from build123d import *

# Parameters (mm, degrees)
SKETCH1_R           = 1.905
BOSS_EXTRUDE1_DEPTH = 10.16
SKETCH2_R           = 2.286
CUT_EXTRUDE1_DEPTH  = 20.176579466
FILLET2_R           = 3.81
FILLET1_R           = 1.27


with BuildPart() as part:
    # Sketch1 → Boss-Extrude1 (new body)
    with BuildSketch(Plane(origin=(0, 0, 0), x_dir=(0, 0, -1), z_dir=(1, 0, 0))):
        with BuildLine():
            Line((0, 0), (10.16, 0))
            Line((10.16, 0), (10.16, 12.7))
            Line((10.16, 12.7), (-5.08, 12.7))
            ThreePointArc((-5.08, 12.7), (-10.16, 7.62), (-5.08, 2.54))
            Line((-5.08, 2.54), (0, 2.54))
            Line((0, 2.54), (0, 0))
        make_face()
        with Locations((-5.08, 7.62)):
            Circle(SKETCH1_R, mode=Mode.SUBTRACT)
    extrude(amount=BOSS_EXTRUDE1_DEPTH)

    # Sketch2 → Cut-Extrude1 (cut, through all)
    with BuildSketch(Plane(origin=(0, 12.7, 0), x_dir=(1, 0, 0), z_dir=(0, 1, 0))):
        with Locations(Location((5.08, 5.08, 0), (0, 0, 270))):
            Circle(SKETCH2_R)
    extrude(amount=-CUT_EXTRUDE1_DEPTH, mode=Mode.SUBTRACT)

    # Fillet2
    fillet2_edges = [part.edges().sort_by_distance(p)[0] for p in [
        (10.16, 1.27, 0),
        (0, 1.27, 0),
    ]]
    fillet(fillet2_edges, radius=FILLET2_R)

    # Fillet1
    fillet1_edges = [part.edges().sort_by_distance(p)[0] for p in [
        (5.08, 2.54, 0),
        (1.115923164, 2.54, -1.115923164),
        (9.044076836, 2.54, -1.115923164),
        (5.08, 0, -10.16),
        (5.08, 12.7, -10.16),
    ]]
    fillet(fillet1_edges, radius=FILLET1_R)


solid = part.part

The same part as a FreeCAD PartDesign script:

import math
import FreeCAD as App
import Part
import Sketcher
from FreeCAD import Vector
Q = App.Units.Quantity


def edges_at(feature, points):
    """Names of the edges that pass closest to the given points."""
    edges = feature.Shape.Edges
    near = lambda p: min(range(len(edges)), key=lambda i: edges[i].distToShape(Part.Vertex(*p))[0])
    return sorted({f"Edge{near(p) + 1}" for p in points})

doc = App.newDocument("Part")
params = doc.addObject("Spreadsheet::Sheet", "Params")
for row, (alias, value) in enumerate([
    ("sketch1_radius", "0.2 in"),
    ("sketch1_diameter", "0.15 in"),
    ("sketch1_width", "0.5 in"),
    ("sketch1_height", "0.4 in"),
    ("sketch1_height2", "0.6 in"),
    ("pad1_length", "0.4 in"),
    ("sketch2_diameter", "0.18 in"),
    ("fillet_radius", "0.15 in"),
    ("fillet2_radius", "0.05 in"),
], start=1):
    params.set(f"A{row}", alias)
    params.set(f"B{row}", "=" + value)
    params.setAlias(f"B{row}", alias)

body = doc.addObject("PartDesign::Body", "Body")

# Sketch on YZ plane
sketch1 = body.newObject("Sketcher::SketchObject", "Sketch")
sketch1.AttachmentSupport = (doc.getObject("YZ_Plane"), [""])
sketch1.MapMode = "FlatFace"
sketch1.addGeometry(Part.LineSegment(Vector(0, 0, 0), Vector(0, -10.2, 0)), False)
sketch1.addGeometry(Part.LineSegment(Vector(0, -10.2, 0), Vector(12.7, -10.2, 0)), False)
sketch1.addGeometry(Part.LineSegment(Vector(12.7, -10.2, 0), Vector(12.7, 5.1, 0)), False)
sketch1.addGeometry(Part.ArcOfCircle(Part.Circle(Vector(7.6, 5.1, 0), Vector(0, 0, 1), 5.1), math.radians(0), math.radians(180)), False)
sketch1.addGeometry(Part.LineSegment(Vector(2.5, 5.1, 0), Vector(2.5, 0, 0)), False)
sketch1.addGeometry(Part.LineSegment(Vector(2.5, 0, 0), Vector(0, 0, 0)), False)
sketch1.addGeometry(Part.Circle(Vector(7.6, 5.1, 0), Vector(0, 0, 1), 1.9), False)
sketch1.addConstraint(Sketcher.Constraint("Coincident", 0, 2, 1, 1))
sketch1.addConstraint(Sketcher.Constraint("Coincident", 1, 2, 2, 1))
sketch1.addConstraint(Sketcher.Constraint("Tangent", 2, 2, 3, 1))
sketch1.addConstraint(Sketcher.Constraint("Tangent", 3, 2, 4, 1))
sketch1.addConstraint(Sketcher.Constraint("Coincident", 4, 2, 5, 1))
sketch1.addConstraint(Sketcher.Constraint("Coincident", 5, 2, 0, 1))
sketch1.addConstraint(Sketcher.Constraint("Vertical", 0))
sketch1.addConstraint(Sketcher.Constraint("Horizontal", 1))
sketch1.addConstraint(Sketcher.Constraint("Vertical", 2))
sketch1.addConstraint(Sketcher.Constraint("Vertical", 4))
sketch1.addConstraint(Sketcher.Constraint("Horizontal", 5))
sketch1.addConstraint(Sketcher.Constraint("Coincident", 5, 2, -1, 1))
sketch1.addConstraint(Sketcher.Constraint("Coincident", 6, 3, 3, 3))
sketch1.addConstraint(Sketcher.Constraint("Radius", 3, Q("0.2 in")))
sketch1.addConstraint(Sketcher.Constraint("Diameter", 6, Q("0.15 in")))
sketch1.addConstraint(Sketcher.Constraint("DistanceX", 1, 1, 1, 2, Q("0.5 in")))
sketch1.addConstraint(Sketcher.Constraint("DistanceY", 0, 2, 0, 1, Q("0.4 in")))
sketch1.addConstraint(Sketcher.Constraint("DistanceY", 2, 1, 2, 2, Q("0.6 in")))
sketch1.setExpression("Constraints[13]", "Params.sketch1_radius")
sketch1.setExpression("Constraints[14]", "Params.sketch1_diameter")
sketch1.setExpression("Constraints[15]", "Params.sketch1_width")
sketch1.setExpression("Constraints[16]", "Params.sketch1_height")
sketch1.setExpression("Constraints[17]", "Params.sketch1_height2")
pad1 = body.newObject("PartDesign::Pad", "Pad")
pad1.Profile = sketch1
pad1.setExpression("Length", "Params.pad1_length")

# Sketch on XZ plane
sketch2 = body.newObject("Sketcher::SketchObject", "Sketch001")
sketch2.AttachmentSupport = (doc.getObject("XZ_Plane"), [""])
sketch2.MapMode = "FlatFace"
sketch2.AttachmentOffset = App.Placement(Vector(0, 0, -0.5 * 25.4), App.Rotation())
sketch2.addGeometry(Part.Circle(Vector(5.1, -5.1, 0), Vector(0, 0, 1), 2.3), False)
sketch2.addConstraint(Sketcher.Constraint("Diameter", 0, Q("0.18 in")))
sketch2.addConstraint(Sketcher.Constraint("DistanceX", -1, 1, 0, 3, Q("0.2 in")))
sketch2.addConstraint(Sketcher.Constraint("DistanceY", 0, 3, -1, 1, Q("0.2 in")))
sketch2.setExpression("Constraints[0]", "Params.sketch2_diameter")
pocket1 = body.newObject("PartDesign::Pocket", "Pocket")
pocket1.Profile = sketch2
pocket1.Type = "ThroughAll"
pocket1.Reversed = True
doc.recompute()

fillet = body.newObject("PartDesign::Fillet", "Fillet")
fillet.Base = (pocket1, edges_at(pocket1, [(10.16, 1.27, 0), (0, 1.27, 0)]))
fillet.setExpression("Radius", "Params.fillet_radius")
doc.recompute()

fillet2 = body.newObject("PartDesign::Fillet", "Fillet001")
fillet2.Base = (fillet, edges_at(fillet, [
    (5.08, 2.54, 0),
    (1.116, 2.54, -1.116),
    (9.044, 2.54, -1.116),
    (5.08, 0, -10.16),
    (5.08, 12.7, -10.16),
]))
fillet2.setExpression("Radius", "Params.fillet2_radius")

doc.recompute()
